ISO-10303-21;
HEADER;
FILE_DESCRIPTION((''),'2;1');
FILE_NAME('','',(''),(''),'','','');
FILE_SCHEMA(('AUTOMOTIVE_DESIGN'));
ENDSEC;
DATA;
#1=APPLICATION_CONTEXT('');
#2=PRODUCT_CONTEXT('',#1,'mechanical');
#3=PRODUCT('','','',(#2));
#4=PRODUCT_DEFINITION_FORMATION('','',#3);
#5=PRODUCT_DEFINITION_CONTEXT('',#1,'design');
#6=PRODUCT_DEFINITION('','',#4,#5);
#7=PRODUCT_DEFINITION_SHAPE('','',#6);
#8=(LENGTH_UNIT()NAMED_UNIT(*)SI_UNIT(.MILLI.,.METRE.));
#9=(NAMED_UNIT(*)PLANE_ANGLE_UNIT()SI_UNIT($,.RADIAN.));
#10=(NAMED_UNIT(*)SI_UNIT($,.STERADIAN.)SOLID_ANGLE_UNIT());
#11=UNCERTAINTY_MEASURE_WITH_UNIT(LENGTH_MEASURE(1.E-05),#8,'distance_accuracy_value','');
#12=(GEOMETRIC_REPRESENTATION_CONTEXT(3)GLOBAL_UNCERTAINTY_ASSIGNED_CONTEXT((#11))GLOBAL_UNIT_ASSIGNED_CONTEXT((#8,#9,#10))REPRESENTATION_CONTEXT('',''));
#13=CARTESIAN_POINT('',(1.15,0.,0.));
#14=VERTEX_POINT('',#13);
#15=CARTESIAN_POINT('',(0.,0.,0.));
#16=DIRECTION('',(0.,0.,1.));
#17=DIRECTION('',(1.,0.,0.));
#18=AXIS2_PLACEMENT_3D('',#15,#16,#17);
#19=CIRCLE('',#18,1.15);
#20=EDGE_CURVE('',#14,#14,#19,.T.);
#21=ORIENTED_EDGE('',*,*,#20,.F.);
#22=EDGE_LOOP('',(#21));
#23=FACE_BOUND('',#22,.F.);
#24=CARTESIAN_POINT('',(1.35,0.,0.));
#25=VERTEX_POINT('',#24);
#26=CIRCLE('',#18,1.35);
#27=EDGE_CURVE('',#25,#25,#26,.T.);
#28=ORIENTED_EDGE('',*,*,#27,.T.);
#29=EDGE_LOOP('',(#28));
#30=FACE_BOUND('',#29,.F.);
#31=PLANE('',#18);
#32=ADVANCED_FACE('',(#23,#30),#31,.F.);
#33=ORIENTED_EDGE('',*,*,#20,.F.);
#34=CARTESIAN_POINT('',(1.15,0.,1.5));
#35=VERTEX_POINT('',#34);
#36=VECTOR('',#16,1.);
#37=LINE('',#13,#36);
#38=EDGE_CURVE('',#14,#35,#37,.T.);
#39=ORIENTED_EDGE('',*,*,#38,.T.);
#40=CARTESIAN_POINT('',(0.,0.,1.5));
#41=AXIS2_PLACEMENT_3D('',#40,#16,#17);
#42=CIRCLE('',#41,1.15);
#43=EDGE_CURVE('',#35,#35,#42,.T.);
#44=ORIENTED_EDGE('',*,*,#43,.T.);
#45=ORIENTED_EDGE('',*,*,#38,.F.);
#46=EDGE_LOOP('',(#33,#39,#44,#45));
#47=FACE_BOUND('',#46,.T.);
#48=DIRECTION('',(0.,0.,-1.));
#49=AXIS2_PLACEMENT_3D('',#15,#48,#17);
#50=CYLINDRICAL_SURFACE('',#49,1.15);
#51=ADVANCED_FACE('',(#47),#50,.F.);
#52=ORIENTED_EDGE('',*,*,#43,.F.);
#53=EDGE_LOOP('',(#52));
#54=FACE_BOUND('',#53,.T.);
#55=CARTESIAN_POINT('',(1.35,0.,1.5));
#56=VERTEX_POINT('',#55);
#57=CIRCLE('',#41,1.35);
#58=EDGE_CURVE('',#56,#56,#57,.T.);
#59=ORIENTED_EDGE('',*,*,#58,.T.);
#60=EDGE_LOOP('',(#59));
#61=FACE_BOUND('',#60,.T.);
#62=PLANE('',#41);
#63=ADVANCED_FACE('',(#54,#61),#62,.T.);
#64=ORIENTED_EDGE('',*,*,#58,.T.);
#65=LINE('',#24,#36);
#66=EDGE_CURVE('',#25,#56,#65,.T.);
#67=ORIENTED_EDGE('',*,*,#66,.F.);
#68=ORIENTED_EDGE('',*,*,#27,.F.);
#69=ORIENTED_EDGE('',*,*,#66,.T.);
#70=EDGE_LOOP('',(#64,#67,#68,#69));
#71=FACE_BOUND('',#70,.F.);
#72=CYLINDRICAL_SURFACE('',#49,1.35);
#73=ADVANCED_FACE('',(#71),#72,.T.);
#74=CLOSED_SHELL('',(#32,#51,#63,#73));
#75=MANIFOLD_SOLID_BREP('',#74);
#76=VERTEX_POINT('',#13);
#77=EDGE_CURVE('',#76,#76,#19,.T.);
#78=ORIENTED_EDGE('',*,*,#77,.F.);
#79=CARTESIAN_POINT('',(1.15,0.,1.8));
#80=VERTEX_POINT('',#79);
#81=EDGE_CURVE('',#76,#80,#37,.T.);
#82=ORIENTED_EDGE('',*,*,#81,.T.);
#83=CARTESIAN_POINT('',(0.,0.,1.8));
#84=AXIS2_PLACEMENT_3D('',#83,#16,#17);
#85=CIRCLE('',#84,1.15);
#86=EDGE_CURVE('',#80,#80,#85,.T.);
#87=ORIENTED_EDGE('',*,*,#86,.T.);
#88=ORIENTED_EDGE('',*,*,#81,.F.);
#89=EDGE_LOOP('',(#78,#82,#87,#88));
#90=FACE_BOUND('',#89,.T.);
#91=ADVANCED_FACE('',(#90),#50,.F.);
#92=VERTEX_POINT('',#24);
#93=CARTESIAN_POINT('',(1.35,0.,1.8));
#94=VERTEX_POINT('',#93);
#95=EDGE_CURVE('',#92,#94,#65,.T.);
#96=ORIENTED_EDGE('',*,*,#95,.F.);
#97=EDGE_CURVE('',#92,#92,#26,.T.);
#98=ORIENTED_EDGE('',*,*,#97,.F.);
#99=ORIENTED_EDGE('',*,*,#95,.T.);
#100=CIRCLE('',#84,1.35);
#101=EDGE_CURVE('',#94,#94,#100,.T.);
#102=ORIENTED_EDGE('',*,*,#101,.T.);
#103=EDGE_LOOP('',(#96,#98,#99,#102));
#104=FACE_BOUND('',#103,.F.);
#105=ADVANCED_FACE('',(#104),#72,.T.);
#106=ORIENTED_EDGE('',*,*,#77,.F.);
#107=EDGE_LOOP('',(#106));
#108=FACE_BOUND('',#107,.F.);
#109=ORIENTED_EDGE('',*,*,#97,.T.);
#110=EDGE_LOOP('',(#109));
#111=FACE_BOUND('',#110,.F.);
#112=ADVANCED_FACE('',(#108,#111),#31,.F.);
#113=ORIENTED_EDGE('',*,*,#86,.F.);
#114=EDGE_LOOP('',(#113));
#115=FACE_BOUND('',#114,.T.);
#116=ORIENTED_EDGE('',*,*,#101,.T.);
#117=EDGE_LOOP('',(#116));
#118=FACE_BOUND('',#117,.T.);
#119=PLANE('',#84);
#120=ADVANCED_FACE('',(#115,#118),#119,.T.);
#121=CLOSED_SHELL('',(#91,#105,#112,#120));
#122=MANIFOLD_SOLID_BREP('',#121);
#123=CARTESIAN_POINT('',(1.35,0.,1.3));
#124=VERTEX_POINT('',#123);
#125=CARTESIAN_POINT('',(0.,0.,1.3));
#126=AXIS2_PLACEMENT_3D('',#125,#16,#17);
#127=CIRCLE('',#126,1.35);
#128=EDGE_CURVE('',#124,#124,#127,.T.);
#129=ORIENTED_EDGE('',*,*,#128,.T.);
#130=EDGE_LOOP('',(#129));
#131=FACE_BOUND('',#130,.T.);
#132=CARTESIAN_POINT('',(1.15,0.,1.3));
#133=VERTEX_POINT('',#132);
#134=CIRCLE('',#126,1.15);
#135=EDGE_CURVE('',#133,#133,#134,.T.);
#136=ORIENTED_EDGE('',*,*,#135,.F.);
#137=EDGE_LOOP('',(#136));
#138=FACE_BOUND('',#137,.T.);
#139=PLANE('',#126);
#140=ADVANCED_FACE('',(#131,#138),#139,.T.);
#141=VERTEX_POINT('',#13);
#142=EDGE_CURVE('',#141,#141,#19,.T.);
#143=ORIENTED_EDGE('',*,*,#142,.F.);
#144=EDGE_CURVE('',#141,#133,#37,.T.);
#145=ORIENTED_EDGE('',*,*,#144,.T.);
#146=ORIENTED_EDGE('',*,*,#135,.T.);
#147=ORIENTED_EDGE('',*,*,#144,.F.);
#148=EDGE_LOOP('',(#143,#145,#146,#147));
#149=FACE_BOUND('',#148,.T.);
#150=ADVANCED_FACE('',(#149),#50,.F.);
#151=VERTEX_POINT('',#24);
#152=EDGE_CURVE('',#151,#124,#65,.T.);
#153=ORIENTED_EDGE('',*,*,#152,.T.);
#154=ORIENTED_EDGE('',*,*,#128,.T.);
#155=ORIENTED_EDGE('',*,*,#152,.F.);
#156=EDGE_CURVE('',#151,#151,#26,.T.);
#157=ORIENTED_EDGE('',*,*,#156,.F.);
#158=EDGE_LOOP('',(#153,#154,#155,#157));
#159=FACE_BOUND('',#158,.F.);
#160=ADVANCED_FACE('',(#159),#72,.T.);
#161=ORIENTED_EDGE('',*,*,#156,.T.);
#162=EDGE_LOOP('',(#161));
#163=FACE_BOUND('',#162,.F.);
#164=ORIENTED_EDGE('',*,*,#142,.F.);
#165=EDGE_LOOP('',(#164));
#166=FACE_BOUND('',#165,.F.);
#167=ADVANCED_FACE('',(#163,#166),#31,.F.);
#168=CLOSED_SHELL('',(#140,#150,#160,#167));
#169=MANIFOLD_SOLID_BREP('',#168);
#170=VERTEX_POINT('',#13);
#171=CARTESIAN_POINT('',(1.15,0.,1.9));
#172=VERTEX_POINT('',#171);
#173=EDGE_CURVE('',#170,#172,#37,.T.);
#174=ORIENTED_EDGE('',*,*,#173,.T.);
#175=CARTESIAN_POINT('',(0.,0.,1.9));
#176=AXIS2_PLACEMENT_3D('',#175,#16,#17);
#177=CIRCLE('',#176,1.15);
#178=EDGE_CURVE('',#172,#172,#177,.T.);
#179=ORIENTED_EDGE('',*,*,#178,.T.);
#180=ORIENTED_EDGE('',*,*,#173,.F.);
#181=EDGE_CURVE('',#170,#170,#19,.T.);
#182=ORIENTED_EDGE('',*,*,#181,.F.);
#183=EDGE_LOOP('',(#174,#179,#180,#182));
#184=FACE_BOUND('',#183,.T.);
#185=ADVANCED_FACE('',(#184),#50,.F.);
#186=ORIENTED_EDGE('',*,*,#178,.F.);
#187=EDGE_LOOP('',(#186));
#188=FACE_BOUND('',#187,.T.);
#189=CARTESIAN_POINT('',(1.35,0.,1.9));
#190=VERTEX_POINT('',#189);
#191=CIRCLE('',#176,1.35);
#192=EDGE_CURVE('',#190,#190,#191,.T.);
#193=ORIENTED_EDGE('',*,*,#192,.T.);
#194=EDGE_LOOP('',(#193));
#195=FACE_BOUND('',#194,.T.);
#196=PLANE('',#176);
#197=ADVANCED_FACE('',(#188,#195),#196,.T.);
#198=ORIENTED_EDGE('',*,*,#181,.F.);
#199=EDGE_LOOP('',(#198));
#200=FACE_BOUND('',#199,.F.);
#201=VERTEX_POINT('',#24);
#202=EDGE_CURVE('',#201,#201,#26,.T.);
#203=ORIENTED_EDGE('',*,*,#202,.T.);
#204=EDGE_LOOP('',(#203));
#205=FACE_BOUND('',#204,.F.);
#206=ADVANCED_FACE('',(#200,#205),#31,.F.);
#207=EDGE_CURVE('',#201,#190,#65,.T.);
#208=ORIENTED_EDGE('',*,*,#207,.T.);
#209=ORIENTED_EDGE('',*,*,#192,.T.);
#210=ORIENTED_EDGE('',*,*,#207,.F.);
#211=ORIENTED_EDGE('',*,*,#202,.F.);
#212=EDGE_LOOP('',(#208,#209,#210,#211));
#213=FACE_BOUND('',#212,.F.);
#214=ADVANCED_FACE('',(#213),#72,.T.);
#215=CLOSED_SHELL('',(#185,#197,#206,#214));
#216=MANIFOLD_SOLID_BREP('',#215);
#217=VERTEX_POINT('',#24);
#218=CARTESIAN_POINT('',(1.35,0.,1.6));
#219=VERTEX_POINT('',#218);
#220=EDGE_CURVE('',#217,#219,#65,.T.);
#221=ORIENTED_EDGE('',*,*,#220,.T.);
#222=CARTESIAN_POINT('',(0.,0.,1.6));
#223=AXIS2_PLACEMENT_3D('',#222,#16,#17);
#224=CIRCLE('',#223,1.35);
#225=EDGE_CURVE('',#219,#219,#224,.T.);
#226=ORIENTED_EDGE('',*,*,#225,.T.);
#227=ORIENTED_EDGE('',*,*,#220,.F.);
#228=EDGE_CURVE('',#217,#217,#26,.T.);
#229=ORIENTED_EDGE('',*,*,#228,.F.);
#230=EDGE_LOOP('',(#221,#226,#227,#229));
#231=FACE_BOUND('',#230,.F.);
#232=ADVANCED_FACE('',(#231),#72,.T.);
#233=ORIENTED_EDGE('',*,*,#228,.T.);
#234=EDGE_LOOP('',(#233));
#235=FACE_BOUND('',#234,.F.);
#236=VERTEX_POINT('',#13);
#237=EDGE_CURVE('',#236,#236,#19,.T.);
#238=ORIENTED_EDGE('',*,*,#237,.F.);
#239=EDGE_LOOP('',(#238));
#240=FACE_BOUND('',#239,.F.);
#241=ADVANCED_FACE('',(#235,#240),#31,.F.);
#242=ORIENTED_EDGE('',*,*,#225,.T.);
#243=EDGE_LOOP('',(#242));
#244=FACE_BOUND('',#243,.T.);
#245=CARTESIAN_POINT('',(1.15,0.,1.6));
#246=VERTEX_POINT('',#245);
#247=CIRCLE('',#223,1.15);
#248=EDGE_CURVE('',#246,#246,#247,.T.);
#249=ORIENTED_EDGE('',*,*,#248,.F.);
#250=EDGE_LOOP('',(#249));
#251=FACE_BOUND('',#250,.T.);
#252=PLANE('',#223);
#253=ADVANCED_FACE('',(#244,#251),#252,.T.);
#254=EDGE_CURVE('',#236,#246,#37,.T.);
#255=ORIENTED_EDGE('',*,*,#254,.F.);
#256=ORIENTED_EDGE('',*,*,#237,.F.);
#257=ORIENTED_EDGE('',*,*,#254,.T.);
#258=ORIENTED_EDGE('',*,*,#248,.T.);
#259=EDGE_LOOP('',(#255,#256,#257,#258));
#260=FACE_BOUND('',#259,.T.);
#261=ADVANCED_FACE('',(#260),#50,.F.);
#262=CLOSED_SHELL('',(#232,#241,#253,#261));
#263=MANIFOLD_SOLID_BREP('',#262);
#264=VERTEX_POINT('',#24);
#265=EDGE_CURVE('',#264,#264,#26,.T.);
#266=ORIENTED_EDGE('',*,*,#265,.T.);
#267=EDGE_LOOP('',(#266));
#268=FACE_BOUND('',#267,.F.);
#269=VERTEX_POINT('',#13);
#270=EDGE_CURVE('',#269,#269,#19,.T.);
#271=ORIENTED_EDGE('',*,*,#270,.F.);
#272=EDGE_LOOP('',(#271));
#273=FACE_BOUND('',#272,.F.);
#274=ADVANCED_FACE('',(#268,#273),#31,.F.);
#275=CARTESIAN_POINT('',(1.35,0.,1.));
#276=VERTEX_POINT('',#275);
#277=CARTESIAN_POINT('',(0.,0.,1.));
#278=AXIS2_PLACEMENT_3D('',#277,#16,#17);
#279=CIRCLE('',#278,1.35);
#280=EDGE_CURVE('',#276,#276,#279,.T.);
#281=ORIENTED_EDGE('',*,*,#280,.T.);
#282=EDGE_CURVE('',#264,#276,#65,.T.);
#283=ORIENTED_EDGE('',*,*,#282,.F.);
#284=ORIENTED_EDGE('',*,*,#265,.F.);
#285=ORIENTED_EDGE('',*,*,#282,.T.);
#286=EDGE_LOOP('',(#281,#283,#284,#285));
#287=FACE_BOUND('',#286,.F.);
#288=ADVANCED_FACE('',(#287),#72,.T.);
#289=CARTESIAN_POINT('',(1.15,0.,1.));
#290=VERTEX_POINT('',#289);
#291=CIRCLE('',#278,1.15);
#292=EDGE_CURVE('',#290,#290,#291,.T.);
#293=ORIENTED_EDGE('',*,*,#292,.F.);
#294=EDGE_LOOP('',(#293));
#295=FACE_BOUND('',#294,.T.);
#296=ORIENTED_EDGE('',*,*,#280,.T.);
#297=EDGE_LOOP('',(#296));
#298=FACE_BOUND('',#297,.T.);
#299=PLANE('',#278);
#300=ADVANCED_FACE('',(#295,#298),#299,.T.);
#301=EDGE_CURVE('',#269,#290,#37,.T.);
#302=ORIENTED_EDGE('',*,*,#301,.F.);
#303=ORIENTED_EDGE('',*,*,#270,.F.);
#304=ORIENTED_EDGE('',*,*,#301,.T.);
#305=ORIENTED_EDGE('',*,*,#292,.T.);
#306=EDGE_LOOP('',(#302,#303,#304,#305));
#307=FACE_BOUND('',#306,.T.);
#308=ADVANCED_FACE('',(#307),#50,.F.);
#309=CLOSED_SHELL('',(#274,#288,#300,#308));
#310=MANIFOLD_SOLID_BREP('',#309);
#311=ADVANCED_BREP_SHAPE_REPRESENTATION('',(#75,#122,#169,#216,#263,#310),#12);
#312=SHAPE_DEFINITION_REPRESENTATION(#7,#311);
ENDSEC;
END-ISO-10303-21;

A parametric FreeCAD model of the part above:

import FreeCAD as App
import Part
import Sketcher
from FreeCAD import Vector

doc = App.newDocument("Part")
body = doc.addObject("PartDesign::Body", "Body")

sketch1 = doc.addObject("Sketcher::SketchObject", "Sketch")
body.addObject(sketch1)
sketch1.AttachmentSupport = (doc.XY_Plane, [""])
sketch1.MapMode = "FlatFace"
sketch1.addGeometry(Part.Circle(Vector(0, 0, 0), Vector(0, 0, 1), 1.4), False)
sketch1.addGeometry(Part.Circle(Vector(0, 0, 0), Vector(0, 0, 1), 1.1), False)
sketch1.addConstraint(Sketcher.Constraint("Coincident", 0, 3, -1, 1))
sketch1.addConstraint(Sketcher.Constraint("Coincident", 1, 3, -1, 1))
sketch1.addConstraint(Sketcher.Constraint("Diameter", 0, 2.7))
sketch1.addConstraint(Sketcher.Constraint("Diameter", 1, 2.3))
pad1 = doc.addObject("PartDesign::Pad", "Pad")
body.addObject(pad1)
pad1.Profile = sketch1
pad1.Length = 1.5
body2 = doc.addObject("PartDesign::Body", "Body001")

sketch2 = doc.addObject("Sketcher::SketchObject", "Sketch001")
body2.addObject(sketch2)
sketch2.AttachmentSupport = (doc.getObject("XY_Plane001"), [""])
sketch2.MapMode = "FlatFace"
sketch2.addGeometry(Part.Circle(Vector(0, 0, 0), Vector(0, 0, 1), 1.4), False)
sketch2.addGeometry(Part.Circle(Vector(0, 0, 0), Vector(0, 0, 1), 1.1), False)
sketch2.addConstraint(Sketcher.Constraint("Coincident", 0, 3, -1, 1))
sketch2.addConstraint(Sketcher.Constraint("Coincident", 1, 3, -1, 1))
sketch2.addConstraint(Sketcher.Constraint("Diameter", 0, 2.7))
sketch2.addConstraint(Sketcher.Constraint("Diameter", 1, 2.3))
pad2 = doc.addObject("PartDesign::Pad", "Pad001")
body2.addObject(pad2)
pad2.Profile = sketch2
pad2.Length = 1.6
body3 = doc.addObject("PartDesign::Body", "Body002")

sketch3 = doc.addObject("Sketcher::SketchObject", "Sketch002")
body3.addObject(sketch3)
sketch3.AttachmentSupport = (doc.getObject("XY_Plane002"), [""])
sketch3.MapMode = "FlatFace"
sketch3.addGeometry(Part.Circle(Vector(0, 0, 0), Vector(0, 0, 1), 1.4), False)
sketch3.addGeometry(Part.Circle(Vector(0, 0, 0), Vector(0, 0, 1), 1.1), False)
sketch3.addConstraint(Sketcher.Constraint("Coincident", 0, 3, -1, 1))
sketch3.addConstraint(Sketcher.Constraint("Coincident", 1, 3, -1, 1))
sketch3.addConstraint(Sketcher.Constraint("Diameter", 0, 2.7))
sketch3.addConstraint(Sketcher.Constraint("Diameter", 1, 2.3))
pad3 = doc.addObject("PartDesign::Pad", "Pad002")
body3.addObject(pad3)
pad3.Profile = sketch3
pad3.Length = 1.8
body4 = doc.addObject("PartDesign::Body", "Body003")

sketch4 = doc.addObject("Sketcher::SketchObject", "Sketch003")
body4.addObject(sketch4)
sketch4.AttachmentSupport = (doc.getObject("XY_Plane003"), [""])
sketch4.MapMode = "FlatFace"
sketch4.addGeometry(Part.Circle(Vector(0, 0, 0), Vector(0, 0, 1), 1.4), False)
sketch4.addGeometry(Part.Circle(Vector(0, 0, 0), Vector(0, 0, 1), 1.1), False)
sketch4.addConstraint(Sketcher.Constraint("Coincident", 0, 3, -1, 1))
sketch4.addConstraint(Sketcher.Constraint("Coincident", 1, 3, -1, 1))
sketch4.addConstraint(Sketcher.Constraint("Diameter", 0, 2.7))
sketch4.addConstraint(Sketcher.Constraint("Diameter", 1, 2.3))
pad4 = doc.addObject("PartDesign::Pad", "Pad003")
body4.addObject(pad4)
pad4.Profile = sketch4
pad4.Length = 1.9
body5 = doc.addObject("PartDesign::Body", "Body004")

sketch5 = doc.addObject("Sketcher::SketchObject", "Sketch004")
body5.addObject(sketch5)
sketch5.AttachmentSupport = (doc.getObject("XY_Plane004"), [""])
sketch5.MapMode = "FlatFace"
sketch5.addGeometry(Part.Circle(Vector(0, 0, 0), Vector(0, 0, 1), 1.4), False)
sketch5.addGeometry(Part.Circle(Vector(0, 0, 0), Vector(0, 0, 1), 1.1), False)
sketch5.addConstraint(Sketcher.Constraint("Coincident", 0, 3, -1, 1))
sketch5.addConstraint(Sketcher.Constraint("Coincident", 1, 3, -1, 1))
sketch5.addConstraint(Sketcher.Constraint("Diameter", 0, 2.7))
sketch5.addConstraint(Sketcher.Constraint("Diameter", 1, 2.3))
pad5 = doc.addObject("PartDesign::Pad", "Pad004")
body5.addObject(pad5)
pad5.Profile = sketch5
pad5.Length = 1.3
body6 = doc.addObject("PartDesign::Body", "Body005")

sketch6 = doc.addObject("Sketcher::SketchObject", "Sketch005")
body6.addObject(sketch6)
sketch6.AttachmentSupport = (doc.getObject("XY_Plane005"), [""])
sketch6.MapMode = "FlatFace"
sketch6.addGeometry(Part.Circle(Vector(0, 0, 0), Vector(0, 0, 1), 1.4), False)
sketch6.addGeometry(Part.Circle(Vector(0, 0, 0), Vector(0, 0, 1), 1.1), False)
sketch6.addConstraint(Sketcher.Constraint("Coincident", 0, 3, -1, 1))
sketch6.addConstraint(Sketcher.Constraint("Coincident", 1, 3, -1, 1))
sketch6.addConstraint(Sketcher.Constraint("Diameter", 0, 2.7))
sketch6.addConstraint(Sketcher.Constraint("Diameter", 1, 2.3))
pad6 = doc.addObject("PartDesign::Pad", "Pad005")
body6.addObject(pad6)
pad6.Profile = sketch6
pad6.Length = 1

doc.recompute()
